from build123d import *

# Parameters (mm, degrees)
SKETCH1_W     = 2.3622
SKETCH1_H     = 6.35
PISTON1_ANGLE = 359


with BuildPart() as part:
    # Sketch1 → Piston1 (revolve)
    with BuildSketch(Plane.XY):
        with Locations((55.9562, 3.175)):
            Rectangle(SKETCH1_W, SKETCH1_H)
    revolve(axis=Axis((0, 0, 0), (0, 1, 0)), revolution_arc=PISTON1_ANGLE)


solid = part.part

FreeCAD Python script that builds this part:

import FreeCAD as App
import Part
import Sketcher
Q = App.Units.Quantity


def add_polygon(sketch, points):
    """Adds a closed chain of lines whose ends are joined by coincident constraints."""
    first, n = sketch.GeometryCount, len(points)
    for a, b in zip(points, points[1:] + points[:1]):
        sketch.addGeometry(Part.LineSegment(App.Vector(*a, 0), App.Vector(*b, 0)), False)
    for i in range(n):
        sketch.addConstraint(Sketcher.Constraint("Coincident", first + i, 2, first + (i + 1) % n, 1))

doc = App.newDocument("Part")
body = doc.addObject("PartDesign::Body", "Body")

sketch1 = body.newObject("Sketcher::SketchObject", "Sketch")
sketch1.AttachmentSupport = (doc.getObject("XY_Plane"), [""])
sketch1.MapMode = "FlatFace"
add_polygon(sketch1, [(54.8, 6.3), (54.8, 0), (57.1, 0), (57.1, 6.3)])
sketch1.addConstraint(Sketcher.Constraint("Vertical", 0))
sketch1.addConstraint(Sketcher.Constraint("Horizontal", 1))
sketch1.addConstraint(Sketcher.Constraint("Vertical", 2))
sketch1.addConstraint(Sketcher.Constraint("Horizontal", 3))
sketch1.addConstraint(Sketcher.Constraint("PointOnObject", 0, 2, -1))
sketch1.addConstraint(Sketcher.Constraint("DistanceY", 0, 2, 0, 1, Q("0.25 in")))
sketch1.addConstraint(Sketcher.Constraint("DistanceX", 1, 1, 1, 2, Q("0.093 in")))
sketch1.addConstraint(Sketcher.Constraint("DistanceX", -1, 1, 0, 2, Q("2.1565 in")))
revolution = body.newObject("PartDesign::Revolution", "Revolution")
revolution.Profile = sketch1
revolution.ReferenceAxis = (sketch1, ["V_Axis"])
revolution.Angle = 359

doc.recompute()
